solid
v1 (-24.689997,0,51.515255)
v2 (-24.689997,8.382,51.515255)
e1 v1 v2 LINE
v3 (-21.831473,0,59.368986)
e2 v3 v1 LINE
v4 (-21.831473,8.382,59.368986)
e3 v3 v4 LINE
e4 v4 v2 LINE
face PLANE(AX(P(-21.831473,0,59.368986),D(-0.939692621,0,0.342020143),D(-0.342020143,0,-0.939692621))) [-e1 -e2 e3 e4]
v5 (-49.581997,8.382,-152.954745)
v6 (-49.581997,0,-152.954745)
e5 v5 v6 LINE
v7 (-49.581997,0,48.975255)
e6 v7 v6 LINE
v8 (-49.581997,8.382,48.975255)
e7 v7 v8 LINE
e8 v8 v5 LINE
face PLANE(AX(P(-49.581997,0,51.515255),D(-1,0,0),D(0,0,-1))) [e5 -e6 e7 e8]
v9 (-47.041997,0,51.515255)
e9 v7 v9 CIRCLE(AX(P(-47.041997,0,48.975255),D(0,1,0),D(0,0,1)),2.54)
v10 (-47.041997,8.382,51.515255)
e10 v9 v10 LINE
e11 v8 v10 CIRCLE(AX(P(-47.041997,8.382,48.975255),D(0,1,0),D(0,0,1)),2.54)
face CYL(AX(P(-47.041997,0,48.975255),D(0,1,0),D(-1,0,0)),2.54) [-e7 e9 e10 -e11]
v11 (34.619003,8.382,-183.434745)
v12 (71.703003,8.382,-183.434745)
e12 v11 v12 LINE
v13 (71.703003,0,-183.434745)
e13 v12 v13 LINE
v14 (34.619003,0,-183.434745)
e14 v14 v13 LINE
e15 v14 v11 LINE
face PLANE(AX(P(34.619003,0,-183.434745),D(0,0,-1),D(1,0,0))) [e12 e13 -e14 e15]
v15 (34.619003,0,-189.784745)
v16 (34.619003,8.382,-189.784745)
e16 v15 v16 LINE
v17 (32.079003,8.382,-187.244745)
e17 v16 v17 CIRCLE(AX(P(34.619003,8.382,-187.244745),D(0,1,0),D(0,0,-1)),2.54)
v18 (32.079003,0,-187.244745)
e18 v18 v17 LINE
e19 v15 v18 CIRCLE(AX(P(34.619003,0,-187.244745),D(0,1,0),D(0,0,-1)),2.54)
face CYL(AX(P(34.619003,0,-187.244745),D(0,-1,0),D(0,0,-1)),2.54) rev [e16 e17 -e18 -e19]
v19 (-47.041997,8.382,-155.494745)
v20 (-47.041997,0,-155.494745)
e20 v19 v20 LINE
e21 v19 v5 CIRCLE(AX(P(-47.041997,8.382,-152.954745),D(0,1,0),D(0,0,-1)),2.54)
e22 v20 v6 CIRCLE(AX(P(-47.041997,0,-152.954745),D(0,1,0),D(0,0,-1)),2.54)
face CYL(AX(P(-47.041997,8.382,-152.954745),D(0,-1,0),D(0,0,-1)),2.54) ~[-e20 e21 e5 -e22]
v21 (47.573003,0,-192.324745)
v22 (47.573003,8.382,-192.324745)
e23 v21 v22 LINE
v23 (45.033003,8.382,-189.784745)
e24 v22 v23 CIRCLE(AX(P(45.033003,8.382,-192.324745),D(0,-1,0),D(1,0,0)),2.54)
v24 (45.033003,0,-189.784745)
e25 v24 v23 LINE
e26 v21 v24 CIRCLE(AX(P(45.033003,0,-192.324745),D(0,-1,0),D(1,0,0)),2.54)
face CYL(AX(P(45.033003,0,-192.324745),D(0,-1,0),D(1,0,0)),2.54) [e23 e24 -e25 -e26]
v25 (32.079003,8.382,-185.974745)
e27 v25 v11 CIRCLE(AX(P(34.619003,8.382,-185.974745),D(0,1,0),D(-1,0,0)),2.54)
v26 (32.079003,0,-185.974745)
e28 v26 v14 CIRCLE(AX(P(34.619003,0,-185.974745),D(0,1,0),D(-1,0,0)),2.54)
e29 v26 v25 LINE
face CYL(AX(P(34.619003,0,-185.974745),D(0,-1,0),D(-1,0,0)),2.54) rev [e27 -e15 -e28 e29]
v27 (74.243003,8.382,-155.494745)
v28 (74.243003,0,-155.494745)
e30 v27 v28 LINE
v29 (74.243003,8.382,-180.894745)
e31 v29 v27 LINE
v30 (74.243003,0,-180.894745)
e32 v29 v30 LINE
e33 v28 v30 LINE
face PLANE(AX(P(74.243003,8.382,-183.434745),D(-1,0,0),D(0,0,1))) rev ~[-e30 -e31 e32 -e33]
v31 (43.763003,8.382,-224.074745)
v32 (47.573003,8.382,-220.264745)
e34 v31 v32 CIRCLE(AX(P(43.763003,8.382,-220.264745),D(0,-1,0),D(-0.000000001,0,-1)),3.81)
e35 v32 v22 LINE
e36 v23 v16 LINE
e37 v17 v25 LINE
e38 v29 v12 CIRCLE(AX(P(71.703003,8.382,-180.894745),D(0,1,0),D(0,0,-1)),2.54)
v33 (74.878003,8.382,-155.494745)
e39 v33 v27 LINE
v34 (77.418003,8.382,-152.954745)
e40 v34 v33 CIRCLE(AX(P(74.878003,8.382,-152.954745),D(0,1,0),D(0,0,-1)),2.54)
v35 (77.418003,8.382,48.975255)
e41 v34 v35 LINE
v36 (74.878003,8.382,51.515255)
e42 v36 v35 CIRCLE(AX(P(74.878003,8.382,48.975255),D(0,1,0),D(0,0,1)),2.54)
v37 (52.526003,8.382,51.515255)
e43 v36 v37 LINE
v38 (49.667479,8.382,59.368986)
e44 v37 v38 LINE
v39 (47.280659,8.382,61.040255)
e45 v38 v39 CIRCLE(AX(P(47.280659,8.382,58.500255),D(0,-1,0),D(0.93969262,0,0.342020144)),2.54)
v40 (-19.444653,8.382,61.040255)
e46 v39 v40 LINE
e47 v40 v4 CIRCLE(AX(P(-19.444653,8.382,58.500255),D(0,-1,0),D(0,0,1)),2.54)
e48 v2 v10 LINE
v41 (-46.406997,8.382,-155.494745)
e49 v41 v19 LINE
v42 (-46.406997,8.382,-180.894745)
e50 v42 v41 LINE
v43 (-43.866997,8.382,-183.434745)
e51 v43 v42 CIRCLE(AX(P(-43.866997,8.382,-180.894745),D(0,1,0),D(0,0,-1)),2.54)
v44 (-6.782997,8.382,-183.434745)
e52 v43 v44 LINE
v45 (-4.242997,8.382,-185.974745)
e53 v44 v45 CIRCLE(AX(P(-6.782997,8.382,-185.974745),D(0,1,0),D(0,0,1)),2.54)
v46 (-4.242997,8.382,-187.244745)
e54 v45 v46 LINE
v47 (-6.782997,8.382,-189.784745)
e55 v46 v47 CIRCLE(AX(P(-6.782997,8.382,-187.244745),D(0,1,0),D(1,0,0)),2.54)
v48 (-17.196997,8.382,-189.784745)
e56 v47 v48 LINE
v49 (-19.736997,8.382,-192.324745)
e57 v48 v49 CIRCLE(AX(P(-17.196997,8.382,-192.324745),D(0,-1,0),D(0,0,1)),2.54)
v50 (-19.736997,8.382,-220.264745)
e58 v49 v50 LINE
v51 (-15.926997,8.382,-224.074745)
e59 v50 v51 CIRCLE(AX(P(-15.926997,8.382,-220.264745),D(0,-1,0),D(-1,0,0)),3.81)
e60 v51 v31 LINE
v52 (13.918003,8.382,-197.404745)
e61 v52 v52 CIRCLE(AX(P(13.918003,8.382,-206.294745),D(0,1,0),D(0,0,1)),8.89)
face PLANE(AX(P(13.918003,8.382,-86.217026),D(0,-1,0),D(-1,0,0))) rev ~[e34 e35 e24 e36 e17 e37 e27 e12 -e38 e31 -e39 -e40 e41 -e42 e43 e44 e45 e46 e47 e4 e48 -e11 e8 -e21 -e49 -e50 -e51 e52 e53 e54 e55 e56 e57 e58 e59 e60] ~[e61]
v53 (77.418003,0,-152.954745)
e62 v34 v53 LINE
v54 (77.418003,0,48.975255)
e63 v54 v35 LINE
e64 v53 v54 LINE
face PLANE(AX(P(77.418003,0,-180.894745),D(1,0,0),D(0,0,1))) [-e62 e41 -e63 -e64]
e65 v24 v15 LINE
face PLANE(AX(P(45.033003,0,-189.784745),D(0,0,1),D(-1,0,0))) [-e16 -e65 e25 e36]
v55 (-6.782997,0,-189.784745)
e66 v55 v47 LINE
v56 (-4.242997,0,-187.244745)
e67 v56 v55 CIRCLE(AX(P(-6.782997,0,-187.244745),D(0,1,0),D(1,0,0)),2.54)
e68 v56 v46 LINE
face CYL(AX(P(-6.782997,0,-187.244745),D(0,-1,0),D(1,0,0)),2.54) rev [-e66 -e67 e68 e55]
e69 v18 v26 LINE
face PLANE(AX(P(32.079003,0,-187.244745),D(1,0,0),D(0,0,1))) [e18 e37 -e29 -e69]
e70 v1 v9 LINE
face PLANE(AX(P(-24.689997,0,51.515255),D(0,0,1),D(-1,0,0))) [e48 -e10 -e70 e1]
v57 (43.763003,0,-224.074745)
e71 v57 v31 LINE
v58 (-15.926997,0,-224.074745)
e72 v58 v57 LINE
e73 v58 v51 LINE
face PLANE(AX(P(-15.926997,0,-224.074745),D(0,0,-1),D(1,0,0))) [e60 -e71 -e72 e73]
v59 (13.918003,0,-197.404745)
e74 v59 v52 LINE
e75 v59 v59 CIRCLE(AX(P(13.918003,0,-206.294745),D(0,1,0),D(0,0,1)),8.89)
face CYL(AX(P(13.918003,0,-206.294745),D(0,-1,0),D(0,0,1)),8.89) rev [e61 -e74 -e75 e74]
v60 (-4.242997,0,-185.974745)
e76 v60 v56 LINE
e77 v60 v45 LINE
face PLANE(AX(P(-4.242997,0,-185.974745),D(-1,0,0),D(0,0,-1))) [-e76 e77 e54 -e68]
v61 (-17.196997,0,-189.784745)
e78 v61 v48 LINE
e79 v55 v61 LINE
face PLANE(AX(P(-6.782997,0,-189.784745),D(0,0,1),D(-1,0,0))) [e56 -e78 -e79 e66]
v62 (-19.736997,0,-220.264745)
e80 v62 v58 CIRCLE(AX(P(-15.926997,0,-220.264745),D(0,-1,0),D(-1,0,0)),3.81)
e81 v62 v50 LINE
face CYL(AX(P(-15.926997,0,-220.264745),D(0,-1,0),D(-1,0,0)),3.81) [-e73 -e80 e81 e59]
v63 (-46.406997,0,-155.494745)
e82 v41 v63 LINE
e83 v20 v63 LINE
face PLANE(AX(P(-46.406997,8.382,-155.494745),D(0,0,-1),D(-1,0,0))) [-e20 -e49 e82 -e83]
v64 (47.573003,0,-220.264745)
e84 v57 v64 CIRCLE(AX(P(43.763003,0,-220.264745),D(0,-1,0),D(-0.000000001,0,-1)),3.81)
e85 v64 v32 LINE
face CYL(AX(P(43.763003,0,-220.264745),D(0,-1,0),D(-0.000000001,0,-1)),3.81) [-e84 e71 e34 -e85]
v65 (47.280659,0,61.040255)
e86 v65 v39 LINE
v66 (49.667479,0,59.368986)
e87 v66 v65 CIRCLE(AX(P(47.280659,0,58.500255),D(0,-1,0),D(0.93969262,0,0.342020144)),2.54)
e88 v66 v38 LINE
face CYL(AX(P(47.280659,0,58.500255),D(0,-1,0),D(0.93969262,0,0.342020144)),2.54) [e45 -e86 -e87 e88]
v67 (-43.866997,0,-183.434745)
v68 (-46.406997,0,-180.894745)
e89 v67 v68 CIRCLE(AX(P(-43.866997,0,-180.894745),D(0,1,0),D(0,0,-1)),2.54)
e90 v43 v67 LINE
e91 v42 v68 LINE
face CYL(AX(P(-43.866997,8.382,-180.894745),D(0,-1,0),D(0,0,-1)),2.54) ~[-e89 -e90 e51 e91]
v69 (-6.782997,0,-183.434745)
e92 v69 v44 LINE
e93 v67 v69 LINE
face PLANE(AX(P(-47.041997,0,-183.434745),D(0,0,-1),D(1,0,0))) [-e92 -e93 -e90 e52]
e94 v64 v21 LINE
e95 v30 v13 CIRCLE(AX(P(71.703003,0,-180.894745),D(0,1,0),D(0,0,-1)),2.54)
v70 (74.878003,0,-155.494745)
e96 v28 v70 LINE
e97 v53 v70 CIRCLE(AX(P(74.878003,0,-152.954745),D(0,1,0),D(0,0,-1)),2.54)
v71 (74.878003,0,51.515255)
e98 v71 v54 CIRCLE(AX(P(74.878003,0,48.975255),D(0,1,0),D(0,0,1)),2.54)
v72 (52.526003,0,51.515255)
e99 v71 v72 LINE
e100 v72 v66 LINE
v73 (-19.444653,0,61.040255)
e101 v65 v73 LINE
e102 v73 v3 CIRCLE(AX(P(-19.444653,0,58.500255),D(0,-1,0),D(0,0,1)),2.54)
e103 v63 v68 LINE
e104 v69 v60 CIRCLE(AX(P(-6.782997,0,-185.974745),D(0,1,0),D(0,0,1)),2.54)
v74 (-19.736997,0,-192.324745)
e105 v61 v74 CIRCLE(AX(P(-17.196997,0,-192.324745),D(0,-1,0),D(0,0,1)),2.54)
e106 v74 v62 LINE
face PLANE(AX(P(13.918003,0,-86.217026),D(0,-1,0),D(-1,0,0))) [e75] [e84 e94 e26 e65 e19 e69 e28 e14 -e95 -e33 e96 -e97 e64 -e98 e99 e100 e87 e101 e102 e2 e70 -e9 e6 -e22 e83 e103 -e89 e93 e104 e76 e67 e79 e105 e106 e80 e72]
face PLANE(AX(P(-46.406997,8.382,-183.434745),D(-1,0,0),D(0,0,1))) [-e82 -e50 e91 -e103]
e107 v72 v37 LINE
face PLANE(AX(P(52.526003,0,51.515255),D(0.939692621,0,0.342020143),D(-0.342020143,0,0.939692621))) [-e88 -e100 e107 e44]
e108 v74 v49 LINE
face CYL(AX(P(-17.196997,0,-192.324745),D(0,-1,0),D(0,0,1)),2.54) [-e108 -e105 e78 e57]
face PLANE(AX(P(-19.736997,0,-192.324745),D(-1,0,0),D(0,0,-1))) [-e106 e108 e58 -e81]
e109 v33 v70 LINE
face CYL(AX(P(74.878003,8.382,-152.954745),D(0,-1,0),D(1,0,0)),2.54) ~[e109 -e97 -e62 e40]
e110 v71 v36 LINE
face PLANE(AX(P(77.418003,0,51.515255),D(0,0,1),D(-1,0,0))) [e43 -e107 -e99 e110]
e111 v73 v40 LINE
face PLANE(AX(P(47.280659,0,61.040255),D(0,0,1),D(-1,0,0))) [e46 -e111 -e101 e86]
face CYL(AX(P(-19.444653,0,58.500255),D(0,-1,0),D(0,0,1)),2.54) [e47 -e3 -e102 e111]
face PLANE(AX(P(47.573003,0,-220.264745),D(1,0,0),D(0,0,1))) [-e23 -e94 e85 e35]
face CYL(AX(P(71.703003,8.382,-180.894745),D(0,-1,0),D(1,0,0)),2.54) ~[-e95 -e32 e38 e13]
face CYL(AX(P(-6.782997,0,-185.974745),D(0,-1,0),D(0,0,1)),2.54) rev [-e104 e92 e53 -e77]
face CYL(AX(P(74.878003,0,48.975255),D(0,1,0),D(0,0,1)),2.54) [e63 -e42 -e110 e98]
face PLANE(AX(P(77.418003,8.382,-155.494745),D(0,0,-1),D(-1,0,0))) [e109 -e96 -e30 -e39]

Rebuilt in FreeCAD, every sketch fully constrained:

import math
import FreeCAD as App
import Part
import Sketcher
Q = App.Units.Quantity


def edges_at(feature, points):
    """Names of the edges that pass closest to the given points."""
    edges = feature.Shape.Edges
    near = lambda p: min(range(len(edges)), key=lambda i: edges[i].distToShape(Part.Vertex(*p))[0])
    return sorted({f"Edge{near(p) + 1}" for p in points})

doc = App.newDocument("Part")
params = doc.addObject("Spreadsheet::Sheet", "Params")
for row, (alias, value) in enumerate([
    ("sketch1_diameter", "0.7 in"),
    ("sketch1_radius", "0.1 in"),
    ("sketch1_radius2", "0.15 in"),
    ("sketch1_height", "1.1 in"),
    ("sketch1_width", "2.35 in"),
    ("pad1_length", "0.33 in"),
    ("sketch2_height", "1.1 in"),
    ("sketch2_width", "0.125 in"),
    ("fillet_radius", "0.1 in"),
], start=1):
    params.set(f"A{row}", alias)
    params.set(f"B{row}", "=" + value)
    params.setAlias(f"B{row}", alias)

body = doc.addObject("PartDesign::Body", "Body")

# Sketch on XZ plane
sketch1 = body.newObject("Sketcher::SketchObject", "Sketch")
sketch1.AttachmentSupport = (doc.getObject("XZ_Plane"), [""])
sketch1.MapMode = "FlatFace"
sketch1.addGeometry(Part.LineSegment(App.Vector(43.763003, -224.074745, 0), App.Vector(-15.926997, -224.074745, 0)), False)
sketch1.addGeometry(Part.ArcOfCircle(Part.Circle(App.Vector(-15.926997, -220.264745, 0), App.Vector(0, 0, 1), 3.81), math.radians(180), math.radians(270)), False)
sketch1.addGeometry(Part.LineSegment(App.Vector(-19.736997, -220.264745, 0), App.Vector(-19.736997, -192.324745, 0)), False)
sketch1.addGeometry(Part.ArcOfCircle(Part.Circle(App.Vector(-17.196997, -192.324745, 0), App.Vector(0, 0, 1), 2.54), math.radians(90), math.radians(180)), False)
sketch1.addGeometry(Part.LineSegment(App.Vector(-17.196997, -189.784745, 0), App.Vector(-6.782997, -189.784745, 0)), False)
sketch1.addGeometry(Part.ArcOfCircle(Part.Circle(App.Vector(-6.782997, -187.244745, 0), App.Vector(0, 0, 1), 2.54), math.radians(-90), math.radians(0)), False)
sketch1.addGeometry(Part.LineSegment(App.Vector(-4.242997, -187.244745, 0), App.Vector(-4.242997, -185.974745, 0)), False)
sketch1.addGeometry(Part.ArcOfCircle(Part.Circle(App.Vector(-6.782997, -185.974745, 0), App.Vector(0, 0, 1), 2.54), math.radians(0), math.radians(90)), False)
sketch1.addGeometry(Part.LineSegment(App.Vector(-6.782997, -183.434745, 0), App.Vector(-47.041997, -183.434745, 0)), False)
sketch1.addGeometry(Part.ArcOfCircle(Part.Circle(App.Vector(-47.041997, -180.894745, 0), App.Vector(0, 0, 1), 2.54), math.radians(-180), math.radians(-90)), False)
sketch1.addGeometry(Part.LineSegment(App.Vector(-49.581997, -180.894745, 0), App.Vector(-49.581997, 51.515255, 0)), False)
sketch1.addGeometry(Part.LineSegment(App.Vector(-49.581997, 51.515255, 0), App.Vector(-24.689997, 51.515255, 0)), False)
sketch1.addGeometry(Part.LineSegment(App.Vector(-24.689997, 51.515255, 0), App.Vector(-21.831473, 59.368986, 0)), False)
sketch1.addGeometry(Part.ArcOfCircle(Part.Circle(App.Vector(-19.444653, 58.500255, 0), App.Vector(0, 0, 1), 2.54), math.radians(90), math.radians(160)), False)
sketch1.addGeometry(Part.LineSegment(App.Vector(-19.444653, 61.040255, 0), App.Vector(47.280659, 61.040255, 0)), False)
sketch1.addGeometry(Part.ArcOfCircle(Part.Circle(App.Vector(47.280659, 58.500255, 0), App.Vector(0, 0, 1), 2.54), math.radians(20), math.radians(90)), False)
sketch1.addGeometry(Part.LineSegment(App.Vector(49.667479, 59.368986, 0), App.Vector(52.526003, 51.515255, 0)), False)
sketch1.addGeometry(Part.LineSegment(App.Vector(52.526003, 51.515255, 0), App.Vector(77.418003, 51.515255, 0)), False)
sketch1.addGeometry(Part.LineSegment(App.Vector(77.418003, 51.515255, 0), App.Vector(77.418003, -180.894745, 0)), False)
sketch1.addGeometry(Part.ArcOfCircle(Part.Circle(App.Vector(74.878003, -180.894745, 0), App.Vector(0, 0, 1), 2.54), math.radians(-90), math.radians(0)), False)
sketch1.addGeometry(Part.LineSegment(App.Vector(74.878003, -183.434745, 0), App.Vector(34.619003, -183.434745, 0)), False)
sketch1.addGeometry(Part.ArcOfCircle(Part.Circle(App.Vector(34.619003, -185.974745, 0), App.Vector(0, 0, 1), 2.54), math.radians(90), math.radians(180)), False)
sketch1.addGeometry(Part.LineSegment(App.Vector(32.079003, -185.974745, 0), App.Vector(32.079003, -187.244745, 0)), False)
sketch1.addGeometry(Part.ArcOfCircle(Part.Circle(App.Vector(34.619003, -187.244745, 0), App.Vector(0, 0, 1), 2.54), math.radians(-180), math.radians(-90)), False)
sketch1.addGeometry(Part.LineSegment(App.Vector(34.619003, -189.784745, 0), App.Vector(45.033003, -189.784745, 0)), False)
sketch1.addGeometry(Part.ArcOfCircle(Part.Circle(App.Vector(45.033003, -192.324745, 0), App.Vector(0, 0, 1), 2.54), math.radians(0), math.radians(90)), False)
sketch1.addGeometry(Part.LineSegment(App.Vector(47.573003, -192.324745, 0), App.Vector(47.573003, -220.264745, 0)), False)
sketch1.addGeometry(Part.ArcOfCircle(Part.Circle(App.Vector(43.763003, -220.264745, 0), App.Vector(0, 0, 1), 3.81), math.radians(-90), math.radians(0)), False)
sketch1.addGeometry(Part.Circle(App.Vector(13.918003, -206.294745, 0), App.Vector(0, 0, 1), 8.89), False)
sketch1.addConstraint(Sketcher.Constraint("Tangent", 0, 2, 1, 2))
sketch1.addConstraint(Sketcher.Constraint("Tangent", 1, 1, 2, 1))
sketch1.addConstraint(Sketcher.Constraint("Tangent", 2, 2, 3, 2))
sketch1.addConstraint(Sketcher.Constraint("Tangent", 3, 1, 4, 1))
sketch1.addConstraint(Sketcher.Constraint("Tangent", 4, 2, 5, 1))
sketch1.addConstraint(Sketcher.Constraint("Tangent", 5, 2, 6, 1))
sketch1.addConstraint(Sketcher.Constraint("Tangent", 6, 2, 7, 1))
sketch1.addConstraint(Sketcher.Constraint("Tangent", 7, 2, 8, 1))
sketch1.addConstraint(Sketcher.Constraint("Tangent", 8, 2, 9, 2))
sketch1.addConstraint(Sketcher.Constraint("Tangent", 9, 1, 10, 1))
sketch1.addConstraint(Sketcher.Constraint("Coincident", 10, 2, 11, 1))
sketch1.addConstraint(Sketcher.Constraint("Coincident", 11, 2, 12, 1))
sketch1.addConstraint(Sketcher.Constraint("Tangent", 12, 2, 13, 2))
sketch1.addConstraint(Sketcher.Constraint("Tangent", 13, 1, 14, 1))
sketch1.addConstraint(Sketcher.Constraint("Tangent", 14, 2, 15, 2))
sketch1.addConstraint(Sketcher.Constraint("Tangent", 15, 1, 16, 1))
sketch1.addConstraint(Sketcher.Constraint("Coincident", 16, 2, 17, 1))
sketch1.addConstraint(Sketcher.Constraint("Coincident", 17, 2, 18, 1))
sketch1.addConstraint(Sketcher.Constraint("Tangent", 18, 2, 19, 2))
sketch1.addConstraint(Sketcher.Constraint("Tangent", 19, 1, 20, 1))
sketch1.addConstraint(Sketcher.Constraint("Tangent", 20, 2, 21, 1))
sketch1.addConstraint(Sketcher.Constraint("Tangent", 21, 2, 22, 1))
sketch1.addConstraint(Sketcher.Constraint("Tangent", 22, 2, 23, 1))
sketch1.addConstraint(Sketcher.Constraint("Tangent", 23, 2, 24, 1))
sketch1.addConstraint(Sketcher.Constraint("Tangent", 24, 2, 25, 2))
sketch1.addConstraint(Sketcher.Constraint("Tangent", 25, 1, 26, 1))
sketch1.addConstraint(Sketcher.Constraint("Tangent", 26, 2, 27, 2))
sketch1.addConstraint(Sketcher.Constraint("Tangent", 27, 1, 0, 1))
sketch1.addConstraint(Sketcher.Constraint("Horizontal", 0))
sketch1.addConstraint(Sketcher.Constraint("Vertical", 2))
sketch1.addConstraint(Sketcher.Constraint("Horizontal", 4))
sketch1.addConstraint(Sketcher.Constraint("Vertical", 6))
sketch1.addConstraint(Sketcher.Constraint("Horizontal", 8))
sketch1.addConstraint(Sketcher.Constraint("Vertical", 10))
sketch1.addConstraint(Sketcher.Constraint("Horizontal", 11))
sketch1.addConstraint(Sketcher.Constraint("Horizontal", 14))
sketch1.addConstraint(Sketcher.Constraint("Horizontal", 17))
sketch1.addConstraint(Sketcher.Constraint("Vertical", 18))
sketch1.addConstraint(Sketcher.Constraint("Horizontal", 20))
sketch1.addConstraint(Sketcher.Constraint("Vertical", 22))
sketch1.addConstraint(Sketcher.Constraint("Horizontal", 24))
sketch1.addConstraint(Sketcher.Constraint("Vertical", 26))
sketch1.addConstraint(Sketcher.Constraint("Equal", 3, 5))
sketch1.addConstraint(Sketcher.Constraint("Equal", 5, 7))
sketch1.addConstraint(Sketcher.Constraint("Equal", 7, 9))
sketch1.addConstraint(Sketcher.Constraint("Equal", 9, 13))
sketch1.addConstraint(Sketcher.Constraint("Equal", 13, 15))
sketch1.addConstraint(Sketcher.Constraint("Equal", 15, 19))
sketch1.addConstraint(Sketcher.Constraint("Equal", 19, 21))
sketch1.addConstraint(Sketcher.Constraint("Equal", 21, 23))
sketch1.addConstraint(Sketcher.Constraint("Equal", 23, 25))
sketch1.addConstraint(Sketcher.Constraint("Equal", 1, 27))
sketch1.addConstraint(Sketcher.Constraint("Horizontal", 9, 3, 19, 3))
sketch1.addConstraint(Sketcher.Constraint("Horizontal", 5, 3, 23, 3))
sketch1.addConstraint(Sketcher.Constraint("Horizontal", 12, 2, 15, 1))
sketch1.addConstraint(Sketcher.Constraint("Horizontal", 11, 2, 16, 2))
sketch1.addConstraint(Sketcher.Constraint("Equal", 11, 17))
sketch1.addConstraint(Sketcher.Constraint("Equal", 8, 20))
sketch1.addConstraint(Sketcher.Constraint("Equal", 4, 24))
sketch1.addConstraint(Sketcher.Constraint("Diameter", 28, Q("0.7 in")))
sketch1.addConstraint(Sketcher.Constraint("Radius", 3, Q("0.1 in")))
sketch1.addConstraint(Sketcher.Constraint("Radius", 1, Q("0.15 in")))
sketch1.addConstraint(Sketcher.Constraint("DistanceY", 2, 1, 2, 2, Q("1.1 in")))
sketch1.addConstraint(Sketcher.Constraint("Angle", 12, Q("70 deg")))
sketch1.addConstraint(Sketcher.Constraint("DistanceX", 0, 2, 0, 1, Q("2.35 in")))
sketch1.addConstraint(Sketcher.Constraint("DistanceX", 4, 1, 4, 2, Q("0.41 in")))
sketch1.addConstraint(Sketcher.Constraint("DistanceX", 11, 1, 11, 2, Q("0.98 in")))
sketch1.addConstraint(Sketcher.Constraint("DistanceY", 6, 1, 6, 2, Q("0.05 in")))
sketch1.addConstraint(Sketcher.Constraint("DistanceY", 10, 1, 10, 2, Q("9.15 in")))
sketch1.addConstraint(Sketcher.Constraint("DistanceX", 9, 3, 19, 3, Q("4.8 in")))
sketch1.addConstraint(Sketcher.Constraint("DistanceY", 28, 3, 7, 3, Q("0.8 in")))
sketch1.addConstraint(Sketcher.Constraint("DistanceY", 9, 3, 13, 3, Q("9.425 in")))
sketch1.addConstraint(Sketcher.Constraint("DistanceX", 28, 3, 23, 3, Q("0.815 in")))
sketch1.addConstraint(Sketcher.Constraint("DistanceX", -1, 1, 15, 3, 47.280659))
sketch1.addConstraint(Sketcher.Constraint("DistanceY", 1, 3, -1, 1, 220.264745))
sketch1.setExpression("Constraints[59]", "Params.sketch1_diameter")
sketch1.setExpression("Constraints[60]", "Params.sketch1_radius")
sketch1.setExpression("Constraints[61]", "Params.sketch1_radius2")
sketch1.setExpression("Constraints[62]", "Params.sketch1_height")
sketch1.setExpression("Constraints[64]", "Params.sketch1_width")
pad1 = body.newObject("PartDesign::Pad", "Pad")
pad1.Profile = sketch1
pad1.setExpression("Length", "Params.pad1_length")
pad1.Reversed = True

# Sketch on XZ plane
sketch2 = body.newObject("Sketcher::SketchObject", "Sketch001")
sketch2.AttachmentSupport = (doc.getObject("XZ_Plane"), [""])
sketch2.MapMode = "FlatFace"
sketch2.AttachmentOffset = App.Placement(App.Vector(0, 0, -0.33 * 25.4), App.Rotation())
sketch2.addGeometry(Part.LineSegment(App.Vector(-46.406997, -155.494745, 0), App.Vector(-46.406997, -183.434745, 0)), False)
sketch2.addGeometry(Part.LineSegment(App.Vector(-46.406997, -183.434745, 0), App.Vector(-49.581997, -183.434745, 0)), False)
sketch2.addGeometry(Part.LineSegment(App.Vector(-49.581997, -183.434745, 0), App.Vector(-49.581997, -155.494745, 0)), False)
sketch2.addGeometry(Part.LineSegment(App.Vector(-49.581997, -155.494745, 0), App.Vector(-46.406997, -155.494745, 0)), False)
sketch2.addGeometry(Part.LineSegment(App.Vector(77.418003, -155.494745, 0), App.Vector(77.418003, -183.434745, 0)), False)
sketch2.addGeometry(Part.LineSegment(App.Vector(77.418003, -183.434745, 0), App.Vector(74.243003, -183.434745, 0)), False)
sketch2.addGeometry(Part.LineSegment(App.Vector(74.243003, -183.434745, 0), App.Vector(74.243003, -155.494745, 0)), False)
sketch2.addGeometry(Part.LineSegment(App.Vector(74.243003, -155.494745, 0), App.Vector(77.418003, -155.494745, 0)), False)
sketch2.addConstraint(Sketcher.Constraint("Coincident", 0, 2, 1, 1))
sketch2.addConstraint(Sketcher.Constraint("Coincident", 1, 2, 2, 1))
sketch2.addConstraint(Sketcher.Constraint("Coincident", 2, 2, 3, 1))
sketch2.addConstraint(Sketcher.Constraint("Coincident", 3, 2, 0, 1))
sketch2.addConstraint(Sketcher.Constraint("Coincident", 4, 2, 5, 1))
sketch2.addConstraint(Sketcher.Constraint("Coincident", 5, 2, 6, 1))
sketch2.addConstraint(Sketcher.Constraint("Coincident", 6, 2, 7, 1))
sketch2.addConstraint(Sketcher.Constraint("Coincident", 7, 2, 4, 1))
sketch2.addConstraint(Sketcher.Constraint("Vertical", 0))
sketch2.addConstraint(Sketcher.Constraint("Horizontal", 1))
sketch2.addConstraint(Sketcher.Constraint("Vertical", 2))
sketch2.addConstraint(Sketcher.Constraint("Horizontal", 3))
sketch2.addConstraint(Sketcher.Constraint("Vertical", 4))
sketch2.addConstraint(Sketcher.Constraint("Horizontal", 5))
sketch2.addConstraint(Sketcher.Constraint("Vertical", 6))
sketch2.addConstraint(Sketcher.Constraint("Horizontal", 7))
sketch2.addConstraint(Sketcher.Constraint("Horizontal", 1, 2, 4, 2))
sketch2.addConstraint(Sketcher.Constraint("Horizontal", 3, 2, 6, 2))
sketch2.addConstraint(Sketcher.Constraint("Equal", 3, 5))
sketch2.addConstraint(Sketcher.Constraint("DistanceY", 0, 2, 0, 1, Q("1.1 in")))
sketch2.addConstraint(Sketcher.Constraint("DistanceX", 1, 2, 4, 2, Q("5 in")))
sketch2.addConstraint(Sketcher.Constraint("DistanceX", 1, 2, 1, 1, Q("0.125 in")))
sketch2.addConstraint(Sketcher.Constraint("DistanceX", 0, 2, -1, 1, 46.406997))
sketch2.addConstraint(Sketcher.Constraint("DistanceY", 0, 2, -1, 1, 183.434745))
sketch2.setExpression("Constraints[19]", "Params.sketch2_height")
sketch2.setExpression("Constraints[21]", "Params.sketch2_width")
pocket1 = body.newObject("PartDesign::Pocket", "Pocket")
pocket1.Profile = sketch2
pocket1.Type = "ThroughAll"
pocket1.Reversed = True
doc.recompute()

fillet = body.newObject("PartDesign::Fillet", "Fillet")
fillet.Base = (pocket1, edges_at(pocket1, [
    (74.243, 4.191, -183.435),
    (77.418, 4.191, -155.495),
    (-49.582, 4.191, 51.515),
    (77.418, 4.191, 51.515),
    (-49.582, 4.191, -155.495),
    (-46.407, 4.191, -183.435),
]))
fillet.setExpression("Radius", "Params.fillet_radius")

doc.recompute()
